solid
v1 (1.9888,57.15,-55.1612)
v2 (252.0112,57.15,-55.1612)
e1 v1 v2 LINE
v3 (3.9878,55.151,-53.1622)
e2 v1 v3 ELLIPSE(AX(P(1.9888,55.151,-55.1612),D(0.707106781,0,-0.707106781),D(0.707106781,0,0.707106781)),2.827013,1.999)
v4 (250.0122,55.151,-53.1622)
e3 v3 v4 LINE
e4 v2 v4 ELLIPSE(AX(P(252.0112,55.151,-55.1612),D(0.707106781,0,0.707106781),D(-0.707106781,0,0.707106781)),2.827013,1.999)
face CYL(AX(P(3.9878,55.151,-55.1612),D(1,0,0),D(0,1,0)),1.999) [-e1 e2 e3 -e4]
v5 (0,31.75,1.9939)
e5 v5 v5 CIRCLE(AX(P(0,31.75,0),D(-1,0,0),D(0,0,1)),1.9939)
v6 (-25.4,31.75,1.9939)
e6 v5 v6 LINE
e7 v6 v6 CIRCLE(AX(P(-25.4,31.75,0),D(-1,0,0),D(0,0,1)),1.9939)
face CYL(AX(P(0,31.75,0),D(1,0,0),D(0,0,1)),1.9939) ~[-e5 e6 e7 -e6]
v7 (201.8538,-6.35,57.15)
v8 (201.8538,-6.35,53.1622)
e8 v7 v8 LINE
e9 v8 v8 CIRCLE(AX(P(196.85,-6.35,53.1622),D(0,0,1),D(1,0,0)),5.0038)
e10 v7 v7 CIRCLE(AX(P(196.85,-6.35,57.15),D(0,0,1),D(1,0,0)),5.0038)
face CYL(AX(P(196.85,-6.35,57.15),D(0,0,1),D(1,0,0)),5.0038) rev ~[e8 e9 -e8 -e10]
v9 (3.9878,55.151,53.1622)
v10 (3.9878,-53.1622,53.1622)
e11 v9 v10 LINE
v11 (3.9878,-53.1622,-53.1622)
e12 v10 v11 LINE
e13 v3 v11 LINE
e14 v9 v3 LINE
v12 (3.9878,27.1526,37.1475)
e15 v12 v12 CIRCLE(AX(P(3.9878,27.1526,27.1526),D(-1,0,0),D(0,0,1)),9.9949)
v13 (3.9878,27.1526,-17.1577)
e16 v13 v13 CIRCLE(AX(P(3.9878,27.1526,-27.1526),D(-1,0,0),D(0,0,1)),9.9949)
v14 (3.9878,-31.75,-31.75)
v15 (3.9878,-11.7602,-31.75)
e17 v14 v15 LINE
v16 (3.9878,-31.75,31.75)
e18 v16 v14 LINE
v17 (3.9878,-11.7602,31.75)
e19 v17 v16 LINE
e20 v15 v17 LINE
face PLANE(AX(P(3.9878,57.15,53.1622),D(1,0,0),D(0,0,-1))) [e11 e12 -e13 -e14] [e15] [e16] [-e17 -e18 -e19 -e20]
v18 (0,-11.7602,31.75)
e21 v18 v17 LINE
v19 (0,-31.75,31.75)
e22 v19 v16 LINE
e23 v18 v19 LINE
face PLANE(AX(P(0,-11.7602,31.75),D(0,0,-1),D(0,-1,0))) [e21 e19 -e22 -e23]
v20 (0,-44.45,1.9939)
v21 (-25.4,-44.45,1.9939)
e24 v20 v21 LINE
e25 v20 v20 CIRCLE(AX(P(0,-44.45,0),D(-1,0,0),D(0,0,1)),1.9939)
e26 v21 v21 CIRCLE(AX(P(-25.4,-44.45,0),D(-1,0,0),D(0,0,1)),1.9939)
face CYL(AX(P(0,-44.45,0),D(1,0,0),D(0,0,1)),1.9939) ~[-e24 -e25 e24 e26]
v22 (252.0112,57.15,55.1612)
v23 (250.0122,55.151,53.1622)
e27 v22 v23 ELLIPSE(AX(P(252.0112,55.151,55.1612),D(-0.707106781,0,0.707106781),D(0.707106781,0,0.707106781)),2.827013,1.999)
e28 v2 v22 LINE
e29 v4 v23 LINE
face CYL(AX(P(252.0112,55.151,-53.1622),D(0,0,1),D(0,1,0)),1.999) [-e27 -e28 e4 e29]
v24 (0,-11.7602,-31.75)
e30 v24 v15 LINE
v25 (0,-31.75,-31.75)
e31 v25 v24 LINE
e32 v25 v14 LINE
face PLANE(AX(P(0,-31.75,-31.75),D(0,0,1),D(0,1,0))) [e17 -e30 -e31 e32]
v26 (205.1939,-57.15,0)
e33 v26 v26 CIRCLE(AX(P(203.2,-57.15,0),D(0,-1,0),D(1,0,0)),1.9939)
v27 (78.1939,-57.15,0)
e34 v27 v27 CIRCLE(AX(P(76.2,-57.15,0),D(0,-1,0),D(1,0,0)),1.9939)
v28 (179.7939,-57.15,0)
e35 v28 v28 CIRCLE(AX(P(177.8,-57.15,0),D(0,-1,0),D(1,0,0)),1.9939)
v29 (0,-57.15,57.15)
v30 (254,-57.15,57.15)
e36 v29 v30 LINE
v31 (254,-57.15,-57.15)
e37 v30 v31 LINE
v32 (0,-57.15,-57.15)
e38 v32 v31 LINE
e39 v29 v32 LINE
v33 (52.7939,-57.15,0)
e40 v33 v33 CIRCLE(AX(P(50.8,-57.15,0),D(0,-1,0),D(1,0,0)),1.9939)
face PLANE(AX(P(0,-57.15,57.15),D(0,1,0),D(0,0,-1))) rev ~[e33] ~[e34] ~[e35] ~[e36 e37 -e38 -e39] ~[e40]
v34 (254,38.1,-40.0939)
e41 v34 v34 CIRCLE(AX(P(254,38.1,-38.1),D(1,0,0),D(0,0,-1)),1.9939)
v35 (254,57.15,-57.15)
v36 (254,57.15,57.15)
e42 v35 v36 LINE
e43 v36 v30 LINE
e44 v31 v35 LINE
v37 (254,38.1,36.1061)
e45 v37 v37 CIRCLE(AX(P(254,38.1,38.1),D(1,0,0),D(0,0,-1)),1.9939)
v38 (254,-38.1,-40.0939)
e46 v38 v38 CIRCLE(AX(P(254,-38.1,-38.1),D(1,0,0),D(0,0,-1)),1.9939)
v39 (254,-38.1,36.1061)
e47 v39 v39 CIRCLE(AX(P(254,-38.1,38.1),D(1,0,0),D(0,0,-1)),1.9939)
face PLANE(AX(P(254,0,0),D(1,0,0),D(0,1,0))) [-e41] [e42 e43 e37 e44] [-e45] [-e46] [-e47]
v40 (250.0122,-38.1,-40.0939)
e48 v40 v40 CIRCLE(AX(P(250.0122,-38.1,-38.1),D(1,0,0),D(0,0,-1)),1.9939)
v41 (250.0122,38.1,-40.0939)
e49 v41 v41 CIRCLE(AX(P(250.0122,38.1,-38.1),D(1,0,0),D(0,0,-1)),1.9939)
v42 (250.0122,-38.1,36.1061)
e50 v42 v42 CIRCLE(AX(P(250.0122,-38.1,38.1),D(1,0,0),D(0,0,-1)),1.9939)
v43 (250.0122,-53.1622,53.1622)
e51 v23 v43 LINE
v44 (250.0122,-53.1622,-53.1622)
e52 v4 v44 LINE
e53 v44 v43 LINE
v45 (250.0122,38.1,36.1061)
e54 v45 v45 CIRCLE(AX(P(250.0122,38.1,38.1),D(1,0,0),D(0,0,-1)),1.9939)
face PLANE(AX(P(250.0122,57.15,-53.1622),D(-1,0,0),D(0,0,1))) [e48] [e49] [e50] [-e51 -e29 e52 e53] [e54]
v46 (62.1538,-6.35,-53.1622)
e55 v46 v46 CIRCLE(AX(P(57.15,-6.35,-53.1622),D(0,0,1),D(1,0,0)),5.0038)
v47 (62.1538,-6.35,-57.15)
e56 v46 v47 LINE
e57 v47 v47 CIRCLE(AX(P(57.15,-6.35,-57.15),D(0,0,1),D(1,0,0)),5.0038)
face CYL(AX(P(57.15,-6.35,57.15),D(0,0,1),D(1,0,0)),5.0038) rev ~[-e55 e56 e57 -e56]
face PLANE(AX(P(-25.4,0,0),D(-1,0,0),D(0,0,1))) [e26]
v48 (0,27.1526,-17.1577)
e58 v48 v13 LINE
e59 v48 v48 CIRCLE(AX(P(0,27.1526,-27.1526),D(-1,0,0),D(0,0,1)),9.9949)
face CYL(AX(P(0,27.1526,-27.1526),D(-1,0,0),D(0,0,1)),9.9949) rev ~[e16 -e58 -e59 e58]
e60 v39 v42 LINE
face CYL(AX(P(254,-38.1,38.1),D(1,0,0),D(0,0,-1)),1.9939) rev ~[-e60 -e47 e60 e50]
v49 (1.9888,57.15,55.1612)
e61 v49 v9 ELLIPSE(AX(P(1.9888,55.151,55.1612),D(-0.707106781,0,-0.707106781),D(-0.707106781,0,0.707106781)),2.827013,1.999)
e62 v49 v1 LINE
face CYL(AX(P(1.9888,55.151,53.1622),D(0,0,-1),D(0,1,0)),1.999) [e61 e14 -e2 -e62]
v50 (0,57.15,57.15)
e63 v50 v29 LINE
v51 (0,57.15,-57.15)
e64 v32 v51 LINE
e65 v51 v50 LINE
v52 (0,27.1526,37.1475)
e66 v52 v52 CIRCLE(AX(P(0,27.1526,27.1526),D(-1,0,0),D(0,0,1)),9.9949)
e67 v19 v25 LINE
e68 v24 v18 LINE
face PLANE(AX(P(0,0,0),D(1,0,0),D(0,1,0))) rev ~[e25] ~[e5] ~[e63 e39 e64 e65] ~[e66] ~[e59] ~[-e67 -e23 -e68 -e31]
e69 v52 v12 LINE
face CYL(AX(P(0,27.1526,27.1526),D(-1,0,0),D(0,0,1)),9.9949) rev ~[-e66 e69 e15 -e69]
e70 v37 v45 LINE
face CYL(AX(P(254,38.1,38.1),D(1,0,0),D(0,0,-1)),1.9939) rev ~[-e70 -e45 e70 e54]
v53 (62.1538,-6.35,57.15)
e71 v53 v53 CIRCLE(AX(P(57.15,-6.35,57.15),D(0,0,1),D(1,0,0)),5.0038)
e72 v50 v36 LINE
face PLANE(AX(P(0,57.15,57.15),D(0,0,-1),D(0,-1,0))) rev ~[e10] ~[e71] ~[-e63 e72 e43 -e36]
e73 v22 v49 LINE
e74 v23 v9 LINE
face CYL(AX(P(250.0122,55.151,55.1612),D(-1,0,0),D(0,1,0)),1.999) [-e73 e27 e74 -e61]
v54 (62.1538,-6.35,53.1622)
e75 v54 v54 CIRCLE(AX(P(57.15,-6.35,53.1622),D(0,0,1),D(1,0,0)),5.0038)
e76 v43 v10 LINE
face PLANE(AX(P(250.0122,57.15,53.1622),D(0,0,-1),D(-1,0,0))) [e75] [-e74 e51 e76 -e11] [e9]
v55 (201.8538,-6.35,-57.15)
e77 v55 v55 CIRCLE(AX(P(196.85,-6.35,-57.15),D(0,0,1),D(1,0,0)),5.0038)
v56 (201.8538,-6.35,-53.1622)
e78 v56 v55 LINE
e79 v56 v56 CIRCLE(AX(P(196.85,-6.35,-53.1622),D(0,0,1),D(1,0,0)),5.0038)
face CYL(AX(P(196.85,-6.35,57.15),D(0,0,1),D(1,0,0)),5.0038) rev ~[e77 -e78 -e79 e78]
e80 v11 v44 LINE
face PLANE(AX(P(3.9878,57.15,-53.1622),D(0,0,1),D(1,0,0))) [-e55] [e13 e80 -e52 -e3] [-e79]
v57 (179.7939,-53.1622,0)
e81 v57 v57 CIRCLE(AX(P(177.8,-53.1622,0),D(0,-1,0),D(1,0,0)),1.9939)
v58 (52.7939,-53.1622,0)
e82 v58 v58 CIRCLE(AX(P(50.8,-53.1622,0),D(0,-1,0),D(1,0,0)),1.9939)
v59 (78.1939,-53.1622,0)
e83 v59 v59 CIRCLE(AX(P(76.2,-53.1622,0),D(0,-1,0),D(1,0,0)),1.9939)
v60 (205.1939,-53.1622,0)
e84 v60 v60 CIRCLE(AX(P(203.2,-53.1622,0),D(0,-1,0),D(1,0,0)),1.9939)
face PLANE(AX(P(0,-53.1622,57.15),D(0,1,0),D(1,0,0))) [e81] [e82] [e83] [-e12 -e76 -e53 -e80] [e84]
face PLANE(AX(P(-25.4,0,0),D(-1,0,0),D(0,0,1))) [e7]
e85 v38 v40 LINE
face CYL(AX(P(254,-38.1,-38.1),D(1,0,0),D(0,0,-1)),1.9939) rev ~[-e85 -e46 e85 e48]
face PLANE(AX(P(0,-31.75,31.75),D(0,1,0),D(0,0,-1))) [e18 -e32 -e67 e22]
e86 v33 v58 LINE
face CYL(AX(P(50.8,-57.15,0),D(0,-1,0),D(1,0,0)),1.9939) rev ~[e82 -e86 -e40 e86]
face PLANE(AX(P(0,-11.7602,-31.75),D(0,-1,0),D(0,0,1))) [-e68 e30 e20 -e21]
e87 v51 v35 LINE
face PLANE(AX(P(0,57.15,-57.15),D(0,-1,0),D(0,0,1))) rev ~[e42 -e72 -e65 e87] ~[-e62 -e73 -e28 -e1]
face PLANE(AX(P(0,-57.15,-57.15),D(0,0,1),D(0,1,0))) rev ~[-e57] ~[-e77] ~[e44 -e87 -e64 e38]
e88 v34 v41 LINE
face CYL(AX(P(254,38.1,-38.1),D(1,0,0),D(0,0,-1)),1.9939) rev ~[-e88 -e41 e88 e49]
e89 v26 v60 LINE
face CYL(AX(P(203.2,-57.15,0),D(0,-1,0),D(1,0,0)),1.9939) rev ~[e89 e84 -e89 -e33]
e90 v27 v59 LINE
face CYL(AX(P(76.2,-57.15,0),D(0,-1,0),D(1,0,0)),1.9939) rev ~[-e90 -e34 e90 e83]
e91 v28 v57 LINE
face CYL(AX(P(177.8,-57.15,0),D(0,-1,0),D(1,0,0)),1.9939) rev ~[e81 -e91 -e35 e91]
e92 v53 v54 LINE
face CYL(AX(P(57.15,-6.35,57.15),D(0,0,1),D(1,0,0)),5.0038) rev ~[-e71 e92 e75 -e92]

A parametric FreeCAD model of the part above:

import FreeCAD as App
import Part
import Sketcher

V = App.Vector
Q = App.Units.Quantity


def edges_at(feature, points):
    """Names of the edges that pass closest to the given points."""
    edges = feature.Shape.Edges
    near = lambda p: min(range(len(edges)), key=lambda i: edges[i].distToShape(Part.Vertex(*p))[0])
    return sorted({f"Edge{near(p) + 1}" for p in points})


def add_polygon(sketch, points):
    """Adds a closed chain of lines whose ends are joined by coincident constraints."""
    first, n = sketch.GeometryCount, len(points)
    for a, b in zip(points, points[1:] + points[:1]):
        sketch.addGeometry(Part.LineSegment(App.Vector(*a, 0), App.Vector(*b, 0)), False)
    for i in range(n):
        sketch.addConstraint(Sketcher.Constraint("Coincident", first + i, 2, first + (i + 1) % n, 1))

doc = App.newDocument("Part")
params = doc.addObject("Spreadsheet::Sheet", "Params")
for row, (alias, value) in enumerate([
    ("sketch1_width", "4.5 in"),
    ("pad1_length", "10 in"),
    ("sketch2_width", "9.686 in"),
    ("sketch2_height", "4.186 in"),
    ("pocket1_length", "4.343 in"),
    ("sketch3_diameter", "0.394 in"),
    ("sketch4_diameter", "0.157 in"),
    ("fillet_radius", "0.0787008 in"),
    ("sketch5_diameter", "0.787 in"),
    ("sketch5_height", "2.5 in"),
    ("sketch5_width", "0.787 in"),
    ("pocket4_length", "0.157 in"),
    ("sketch6_diameter", "0.157 in"),
    ("pocket5_length", "0.157 in"),
    ("sketch7_diameter", "0.157 in"),
    ("pad2_length", "1 in"),
], start=1):
    params.set(f"A{row}", alias)
    params.set(f"B{row}", "=" + value)
    params.setAlias(f"B{row}", alias)

body = doc.addObject("PartDesign::Body", "Body")

# Sketch on YZ plane
sketch1 = body.newObject("Sketcher::SketchObject", "Sketch")
sketch1.AttachmentSupport = (doc.getObject("YZ_Plane"), [""])
sketch1.MapMode = "FlatFace"
add_polygon(sketch1, [(57.15, -57.15), (57.15, 57.15), (-57.15, 57.15), (-57.15, -57.15)])  # lines 0-3
sketch1.addConstraint([
    Sketcher.Constraint("Vertical", 0),
    Sketcher.Constraint("Horizontal", 1),
    Sketcher.Constraint("Vertical", 2),
    Sketcher.Constraint("Horizontal", 3),
    Sketcher.Constraint("Symmetric", 0, 2, 2, 2, -1, 1),
    Sketcher.Constraint("Equal", 3, 0),
    Sketcher.Constraint("DistanceX", 1, 2, 1, 1, Q("4.5 in")),
])
sketch1.setExpression("Constraints[10]", "Params.sketch1_width")
pad1 = body.newObject("PartDesign::Pad", "Pad")
pad1.Profile = sketch1
pad1.setExpression("Length", "Params.pad1_length")

# Sketch on XZ plane
sketch2 = body.newObject("Sketcher::SketchObject", "Sketch001")
sketch2.AttachmentSupport = (doc.getObject("XZ_Plane"), [""])
sketch2.MapMode = "FlatFace"
sketch2.AttachmentOffset = App.Placement(V(0, 0, -2.25 * 25.4), App.Rotation())
add_polygon(sketch2, [(250.0122, -53.1622), (3.9878, -53.1622), (3.9878, 53.1622), (250.0122, 53.1622)])  # lines 0-3
sketch2.addConstraint([
    Sketcher.Constraint("Horizontal", 0),
    Sketcher.Constraint("Vertical", 1),
    Sketcher.Constraint("Horizontal", 2),
    Sketcher.Constraint("Vertical", 3),
    Sketcher.Constraint("DistanceX", -1, 1, 0, 2, Q("0.157 in")),
    Sketcher.Constraint("DistanceX", 0, 2, 0, 1, Q("9.686 in")),
    Sketcher.Constraint("DistanceY", 1, 1, 1, 2, Q("4.186 in")),
    Sketcher.Constraint("DistanceY", 0, 2, -1, 1, Q("2.093 in")),
])
sketch2.setExpression("Constraints[9]", "Params.sketch2_width")
sketch2.setExpression("Constraints[10]", "Params.sketch2_height")
pocket1 = body.newObject("PartDesign::Pocket", "Pocket")
pocket1.Profile = sketch2
pocket1.setExpression("Length", "Params.pocket1_length")
pocket1.Reversed = True

# Sketch on XY plane
sketch3 = body.newObject("Sketcher::SketchObject", "Sketch002")
sketch3.AttachmentSupport = (doc.getObject("XY_Plane"), [""])
sketch3.MapMode = "FlatFace"
sketch3.AttachmentOffset = App.Placement(V(0, 0, 2.25 * 25.4), App.Rotation())
sketch3.addGeometry([
    Part.Circle(V(57.15, -6.35, 0), V(0, 0, 1), 5.0038),
    Part.Circle(V(196.85, -6.35, 0), V(0, 0, 1), 5.0038),
], False)
sketch3.addConstraint([
    Sketcher.Constraint("Equal", 0, 1),
    Sketcher.Constraint("Horizontal", 0, 3, 1, 3),
    Sketcher.Constraint("Diameter", 0, Q("0.394 in")),
    Sketcher.Constraint("DistanceX", -1, 1, 0, 3, Q("2.25 in")),
    Sketcher.Constraint("DistanceX", 0, 3, 1, 3, Q("5.5 in")),
    Sketcher.Constraint("DistanceY", 0, 3, -1, 1, Q("0.25 in")),
])
sketch3.setExpression("Constraints[2]", "Params.sketch3_diameter")
pocket2 = body.newObject("PartDesign::Pocket", "Pocket001")
pocket2.Profile = sketch3
pocket2.Type = "ThroughAll"

# Sketch on XZ plane
sketch4 = body.newObject("Sketcher::SketchObject", "Sketch003")
sketch4.AttachmentSupport = (doc.getObject("XZ_Plane"), [""])
sketch4.MapMode = "FlatFace"
sketch4.AttachmentOffset = App.Placement(V(0, 0, 2.25 * 25.4), App.Rotation())
sketch4.addGeometry([
    Part.Circle(V(50.8, 0, 0), V(0, 0, 1), 1.9939),
    Part.Circle(V(76.2, 0, 0), V(0, 0, 1), 1.9939),
    Part.Circle(V(177.8, 0, 0), V(0, 0, 1), 1.9939),
    Part.Circle(V(203.2, 0, 0), V(0, 0, 1), 1.9939),
], False)
sketch4.addConstraint([
    Sketcher.Constraint("Equal", 0, 1),
    Sketcher.Constraint("Equal", 1, 2),
    Sketcher.Constraint("Equal", 2, 3),
    Sketcher.Constraint("PointOnObject", 0, 3, -1),
    Sketcher.Constraint("PointOnObject", 1, 3, -1),
    Sketcher.Constraint("PointOnObject", 2, 3, -1),
    Sketcher.Constraint("PointOnObject", 3, 3, -1),
    Sketcher.Constraint("Diameter", 0, Q("0.157 in")),
    Sketcher.Constraint("DistanceX", -1, 1, 0, 3, Q("2 in")),
    Sketcher.Constraint("DistanceX", -1, 1, 1, 3, Q("3 in")),
    Sketcher.Constraint("DistanceX", -1, 1, 2, 3, Q("7 in")),
    Sketcher.Constraint("DistanceX", -1, 1, 3, 3, Q("8 in")),
])
sketch4.setExpression("Constraints[7]", "Params.sketch4_diameter")
pocket3 = body.newObject("PartDesign::Pocket", "Pocket002")
pocket3.Profile = sketch4
pocket3.Type = "ThroughAll"
doc.recompute()

fillet = body.newObject("PartDesign::Fillet", "Fillet")
fillet.Base = (pocket3, edges_at(pocket3, [
    (250.012, 57.15, 0),
    (127, 57.15, -53.162),
    (127, 57.15, 53.162),
    (3.988, 57.15, 0),
]))
fillet.setExpression("Radius", "Params.fillet_radius")

# Sketch on YZ plane
sketch5 = body.newObject("Sketcher::SketchObject", "Sketch004")
sketch5.AttachmentSupport = (doc.getObject("YZ_Plane"), [""])
sketch5.MapMode = "FlatFace"
sketch5.addGeometry(Part.Circle(V(27.1526, -27.1526, 0), V(0, 0, 1), 9.9949), False)  # 0
sketch5.addGeometry(Part.Circle(V(27.1526, 27.1526, 0), V(0, 0, 1), 9.9949), False)  # 1
add_polygon(sketch5, [(-11.7602, 31.75), (-11.7602, -31.75), (-31.75, -31.75), (-31.75, 31.75)])  # lines 2-5
sketch5.addConstraint([
    Sketcher.Constraint("Vertical", 2),
    Sketcher.Constraint("Horizontal", 3),
    Sketcher.Constraint("Vertical", 4),
    Sketcher.Constraint("Horizontal", 5),
    Sketcher.Constraint("Equal", 0, 1),
    Sketcher.Constraint("Symmetric", 0, 3, 1, 3, -1),
    Sketcher.Constraint("Diameter", 0, Q("0.787 in")),
    Sketcher.Constraint("DistanceY", 2, 2, 2, 1, Q("2.5 in")),
    Sketcher.Constraint("DistanceX", 3, 2, 3, 1, Q("0.787 in")),
    Sketcher.Constraint("DistanceY", 2, 2, -1, 1, Q("1.25 in")),
    Sketcher.Constraint("DistanceX", 3, 2, -1, 1, Q("1.25 in")),
    Sketcher.Constraint("DistanceX", -1, 1, 0, 3, Q("1.069 in")),
    Sketcher.Constraint("DistanceY", 0, 3, -1, 1, Q("1.069 in")),
])
sketch5.setExpression("Constraints[10]", "Params.sketch5_diameter")
sketch5.setExpression("Constraints[11]", "Params.sketch5_height")
sketch5.setExpression("Constraints[12]", "Params.sketch5_width")
pocket4 = body.newObject("PartDesign::Pocket", "Pocket003")
pocket4.Profile = sketch5
pocket4.setExpression("Length", "Params.pocket4_length")
pocket4.Reversed = True

# Sketch on YZ plane
sketch6 = body.newObject("Sketcher::SketchObject", "Sketch005")
sketch6.AttachmentSupport = (doc.getObject("YZ_Plane"), [""])
sketch6.MapMode = "FlatFace"
sketch6.AttachmentOffset = App.Placement(V(0, 0, 10 * 25.4), App.Rotation())
sketch6.addGeometry([
    Part.Circle(V(38.1, 38.1, 0), V(0, 0, 1), 1.9939),
    Part.Circle(V(38.1, -38.1, 0), V(0, 0, 1), 1.9939),
    Part.Circle(V(-38.1, 38.1, 0), V(0, 0, 1), 1.9939),
    Part.Circle(V(-38.1, -38.1, 0), V(0, 0, 1), 1.9939),
], False)
sketch6.addConstraint([
    Sketcher.Constraint("Equal", 0, 1),
    Sketcher.Constraint("Equal", 1, 2),
    Sketcher.Constraint("Equal", 2, 3),
    Sketcher.Constraint("Symmetric", 1, 3, 2, 3, -1, 1),
    Sketcher.Constraint("Symmetric", 0, 3, 3, 3, -1, 1),
    Sketcher.Constraint("Symmetric", 0, 3, 2, 3, -2),
    Sketcher.Constraint("Diameter", 0, Q("0.157 in")),
    Sketcher.Constraint("DistanceY", 1, 3, 0, 3, Q("3 in")),
    Sketcher.Constraint("DistanceX", 2, 3, 0, 3, Q("3 in")),
])
sketch6.setExpression("Constraints[6]", "Params.sketch6_diameter")
pocket5 = body.newObject("PartDesign::Pocket", "Pocket004")
pocket5.Profile = sketch6
pocket5.setExpression("Length", "Params.pocket5_length")

# Sketch on YZ plane
sketch7 = body.newObject("Sketcher::SketchObject", "Sketch006")
sketch7.AttachmentSupport = (doc.getObject("YZ_Plane"), [""])
sketch7.MapMode = "FlatFace"
sketch7.addGeometry([
    Part.Circle(V(31.75, 0, 0), V(0, 0, 1), 1.9939),
    Part.Circle(V(-44.45, 0, 0), V(0, 0, 1), 1.9939),
], False)
sketch7.addConstraint([
    Sketcher.Constraint("Equal", 0, 1),
    Sketcher.Constraint("PointOnObject", 0, 3, -1),
    Sketcher.Constraint("PointOnObject", 1, 3, -1),
    Sketcher.Constraint("Diameter", 0, Q("0.157 in")),
    Sketcher.Constraint("DistanceX", 1, 3, 0, 3, Q("3 in")),
    Sketcher.Constraint("DistanceX", -1, 1, 0, 3, Q("1.25 in")),
])
sketch7.setExpression("Constraints[3]", "Params.sketch7_diameter")
pad2 = body.newObject("PartDesign::Pad", "Pad001")
pad2.Profile = sketch7
pad2.setExpression("Length", "Params.pad2_length")
pad2.Reversed = True

doc.recompute()
